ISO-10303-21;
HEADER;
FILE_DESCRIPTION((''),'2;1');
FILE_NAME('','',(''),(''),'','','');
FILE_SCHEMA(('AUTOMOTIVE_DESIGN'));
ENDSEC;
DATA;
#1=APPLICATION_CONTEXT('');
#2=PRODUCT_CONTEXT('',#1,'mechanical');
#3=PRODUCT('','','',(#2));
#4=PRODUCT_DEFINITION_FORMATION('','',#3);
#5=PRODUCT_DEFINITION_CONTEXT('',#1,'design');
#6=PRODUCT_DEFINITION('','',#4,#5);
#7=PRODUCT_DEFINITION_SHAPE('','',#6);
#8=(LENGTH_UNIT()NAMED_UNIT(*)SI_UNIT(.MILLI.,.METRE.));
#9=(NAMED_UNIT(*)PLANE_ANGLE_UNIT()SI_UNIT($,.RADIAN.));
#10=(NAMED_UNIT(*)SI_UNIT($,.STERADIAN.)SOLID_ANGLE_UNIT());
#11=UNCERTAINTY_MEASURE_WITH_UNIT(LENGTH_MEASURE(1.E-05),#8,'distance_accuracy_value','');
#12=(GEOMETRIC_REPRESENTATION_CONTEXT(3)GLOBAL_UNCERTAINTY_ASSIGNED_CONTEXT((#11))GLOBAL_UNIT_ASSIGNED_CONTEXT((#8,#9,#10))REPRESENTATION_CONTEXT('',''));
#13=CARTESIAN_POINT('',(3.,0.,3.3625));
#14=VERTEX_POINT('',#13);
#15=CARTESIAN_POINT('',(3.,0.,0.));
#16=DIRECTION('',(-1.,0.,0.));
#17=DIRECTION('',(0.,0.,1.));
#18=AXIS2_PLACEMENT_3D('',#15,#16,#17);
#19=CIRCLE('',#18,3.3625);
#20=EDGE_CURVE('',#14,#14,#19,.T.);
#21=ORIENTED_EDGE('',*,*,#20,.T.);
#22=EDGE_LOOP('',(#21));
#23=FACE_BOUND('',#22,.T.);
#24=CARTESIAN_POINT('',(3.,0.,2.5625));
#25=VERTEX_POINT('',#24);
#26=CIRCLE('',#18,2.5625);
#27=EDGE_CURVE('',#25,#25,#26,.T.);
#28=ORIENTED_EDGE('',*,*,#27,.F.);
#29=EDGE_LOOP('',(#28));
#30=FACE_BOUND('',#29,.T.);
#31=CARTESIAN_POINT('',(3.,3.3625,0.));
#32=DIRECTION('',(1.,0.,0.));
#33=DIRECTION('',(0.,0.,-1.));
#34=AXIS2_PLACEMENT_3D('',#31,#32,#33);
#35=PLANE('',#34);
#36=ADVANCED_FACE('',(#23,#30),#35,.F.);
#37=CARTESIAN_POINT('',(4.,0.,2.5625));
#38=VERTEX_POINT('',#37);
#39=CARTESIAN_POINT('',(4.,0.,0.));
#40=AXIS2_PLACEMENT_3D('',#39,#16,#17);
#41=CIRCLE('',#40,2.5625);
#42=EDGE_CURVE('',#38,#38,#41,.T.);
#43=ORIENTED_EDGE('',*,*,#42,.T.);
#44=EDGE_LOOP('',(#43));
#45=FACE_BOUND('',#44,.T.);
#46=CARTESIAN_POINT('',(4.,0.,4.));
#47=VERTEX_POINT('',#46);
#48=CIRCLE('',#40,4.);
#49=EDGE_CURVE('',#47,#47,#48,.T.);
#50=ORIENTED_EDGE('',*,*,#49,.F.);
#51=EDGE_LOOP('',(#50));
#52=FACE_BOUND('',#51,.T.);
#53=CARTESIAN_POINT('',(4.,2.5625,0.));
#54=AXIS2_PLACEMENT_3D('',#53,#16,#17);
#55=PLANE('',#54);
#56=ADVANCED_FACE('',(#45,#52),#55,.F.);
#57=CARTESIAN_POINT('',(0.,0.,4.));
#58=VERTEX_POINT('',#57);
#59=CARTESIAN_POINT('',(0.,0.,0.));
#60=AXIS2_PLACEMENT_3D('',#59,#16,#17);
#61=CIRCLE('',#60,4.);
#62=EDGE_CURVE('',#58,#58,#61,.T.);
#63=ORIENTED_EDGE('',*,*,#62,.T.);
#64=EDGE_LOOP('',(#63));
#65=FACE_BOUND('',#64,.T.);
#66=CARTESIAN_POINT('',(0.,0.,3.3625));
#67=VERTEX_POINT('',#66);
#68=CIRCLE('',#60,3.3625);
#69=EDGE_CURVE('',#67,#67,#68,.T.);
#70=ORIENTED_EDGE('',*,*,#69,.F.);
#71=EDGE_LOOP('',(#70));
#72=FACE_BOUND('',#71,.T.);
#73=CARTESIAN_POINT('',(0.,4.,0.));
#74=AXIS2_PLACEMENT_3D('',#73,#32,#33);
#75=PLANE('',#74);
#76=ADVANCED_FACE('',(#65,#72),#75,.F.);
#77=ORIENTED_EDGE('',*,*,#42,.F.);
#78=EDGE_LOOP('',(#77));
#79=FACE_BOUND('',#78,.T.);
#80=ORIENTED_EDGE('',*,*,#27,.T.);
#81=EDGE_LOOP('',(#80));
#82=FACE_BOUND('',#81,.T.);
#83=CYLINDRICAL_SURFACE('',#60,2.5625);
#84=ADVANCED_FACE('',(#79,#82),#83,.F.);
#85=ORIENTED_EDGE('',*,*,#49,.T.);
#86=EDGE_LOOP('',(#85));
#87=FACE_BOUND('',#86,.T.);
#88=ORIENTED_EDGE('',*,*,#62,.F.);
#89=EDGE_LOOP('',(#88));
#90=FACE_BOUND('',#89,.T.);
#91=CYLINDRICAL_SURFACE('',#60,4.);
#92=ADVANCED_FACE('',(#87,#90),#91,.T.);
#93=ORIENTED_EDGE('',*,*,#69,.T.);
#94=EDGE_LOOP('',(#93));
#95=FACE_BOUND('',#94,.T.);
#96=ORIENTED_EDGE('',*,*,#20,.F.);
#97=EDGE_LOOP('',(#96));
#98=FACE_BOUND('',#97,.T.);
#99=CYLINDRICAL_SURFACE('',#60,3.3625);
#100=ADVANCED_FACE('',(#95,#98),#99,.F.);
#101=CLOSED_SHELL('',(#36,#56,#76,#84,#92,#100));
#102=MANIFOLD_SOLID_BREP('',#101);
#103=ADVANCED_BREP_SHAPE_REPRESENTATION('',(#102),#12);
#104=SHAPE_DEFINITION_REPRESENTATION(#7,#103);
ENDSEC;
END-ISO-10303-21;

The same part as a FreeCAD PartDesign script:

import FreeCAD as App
import Part
import Sketcher
from FreeCAD import Vector

doc = App.newDocument("Part")
body = doc.addObject("PartDesign::Body", "Body")

sketch1 = doc.addObject("Sketcher::SketchObject", "Sketch")
body.addObject(sketch1)
sketch1.AttachmentSupport = (doc.XY_Plane, [""])
sketch1.MapMode = "FlatFace"
sketch1.addGeometry(Part.LineSegment(Vector(0, 3.4, 0), Vector(3, 3.4, 0)), False)
sketch1.addGeometry(Part.LineSegment(Vector(3, 3.4, 0), Vector(3, 2.6, 0)), False)
sketch1.addGeometry(Part.LineSegment(Vector(3, 2.6, 0), Vector(4, 2.6, 0)), False)
sketch1.addGeometry(Part.LineSegment(Vector(4, 2.6, 0), Vector(4, 4, 0)), False)
sketch1.addGeometry(Part.LineSegment(Vector(4, 4, 0), Vector(0, 4, 0)), False)
sketch1.addGeometry(Part.LineSegment(Vector(0, 4, 0), Vector(0, 3.4, 0)), False)
sketch1.addConstraint(Sketcher.Constraint("Coincident", 0, 2, 1, 1))
sketch1.addConstraint(Sketcher.Constraint("Coincident", 1, 2, 2, 1))
sketch1.addConstraint(Sketcher.Constraint("Coincident", 2, 2, 3, 1))
sketch1.addConstraint(Sketcher.Constraint("Coincident", 3, 2, 4, 1))
sketch1.addConstraint(Sketcher.Constraint("Coincident", 4, 2, 5, 1))
sketch1.addConstraint(Sketcher.Constraint("Coincident", 5, 2, 0, 1))
sketch1.addConstraint(Sketcher.Constraint("Horizontal", 0))
sketch1.addConstraint(Sketcher.Constraint("Vertical", 1))
sketch1.addConstraint(Sketcher.Constraint("Horizontal", 2))
sketch1.addConstraint(Sketcher.Constraint("Vertical", 3))
sketch1.addConstraint(Sketcher.Constraint("Horizontal", 4))
sketch1.addConstraint(Sketcher.Constraint("Vertical", 5))
sketch1.addConstraint(Sketcher.Constraint("PointOnObject", 4, 2, -2))
sketch1.addConstraint(Sketcher.Constraint("DistanceX", 0, 1, 0, 2, 3.0))
sketch1.addConstraint(Sketcher.Constraint("DistanceX", 2, 1, 2, 2, 1.0))
sketch1.addConstraint(Sketcher.Constraint("DistanceY", 1, 2, 1, 1, 0.8))
sketch1.addConstraint(Sketcher.Constraint("DistanceY", -1, 1, 3, 2, 4.0))
sketch1.addConstraint(Sketcher.Constraint("DistanceY", 3, 1, 3, 2, 1.4375))
revolution = doc.addObject("PartDesign::Revolution", "Revolution")
body.addObject(revolution)
revolution.Profile = sketch1
revolution.ReferenceAxis = (sketch1, ["H_Axis"])
revolution.Angle = 360

doc.recompute()
